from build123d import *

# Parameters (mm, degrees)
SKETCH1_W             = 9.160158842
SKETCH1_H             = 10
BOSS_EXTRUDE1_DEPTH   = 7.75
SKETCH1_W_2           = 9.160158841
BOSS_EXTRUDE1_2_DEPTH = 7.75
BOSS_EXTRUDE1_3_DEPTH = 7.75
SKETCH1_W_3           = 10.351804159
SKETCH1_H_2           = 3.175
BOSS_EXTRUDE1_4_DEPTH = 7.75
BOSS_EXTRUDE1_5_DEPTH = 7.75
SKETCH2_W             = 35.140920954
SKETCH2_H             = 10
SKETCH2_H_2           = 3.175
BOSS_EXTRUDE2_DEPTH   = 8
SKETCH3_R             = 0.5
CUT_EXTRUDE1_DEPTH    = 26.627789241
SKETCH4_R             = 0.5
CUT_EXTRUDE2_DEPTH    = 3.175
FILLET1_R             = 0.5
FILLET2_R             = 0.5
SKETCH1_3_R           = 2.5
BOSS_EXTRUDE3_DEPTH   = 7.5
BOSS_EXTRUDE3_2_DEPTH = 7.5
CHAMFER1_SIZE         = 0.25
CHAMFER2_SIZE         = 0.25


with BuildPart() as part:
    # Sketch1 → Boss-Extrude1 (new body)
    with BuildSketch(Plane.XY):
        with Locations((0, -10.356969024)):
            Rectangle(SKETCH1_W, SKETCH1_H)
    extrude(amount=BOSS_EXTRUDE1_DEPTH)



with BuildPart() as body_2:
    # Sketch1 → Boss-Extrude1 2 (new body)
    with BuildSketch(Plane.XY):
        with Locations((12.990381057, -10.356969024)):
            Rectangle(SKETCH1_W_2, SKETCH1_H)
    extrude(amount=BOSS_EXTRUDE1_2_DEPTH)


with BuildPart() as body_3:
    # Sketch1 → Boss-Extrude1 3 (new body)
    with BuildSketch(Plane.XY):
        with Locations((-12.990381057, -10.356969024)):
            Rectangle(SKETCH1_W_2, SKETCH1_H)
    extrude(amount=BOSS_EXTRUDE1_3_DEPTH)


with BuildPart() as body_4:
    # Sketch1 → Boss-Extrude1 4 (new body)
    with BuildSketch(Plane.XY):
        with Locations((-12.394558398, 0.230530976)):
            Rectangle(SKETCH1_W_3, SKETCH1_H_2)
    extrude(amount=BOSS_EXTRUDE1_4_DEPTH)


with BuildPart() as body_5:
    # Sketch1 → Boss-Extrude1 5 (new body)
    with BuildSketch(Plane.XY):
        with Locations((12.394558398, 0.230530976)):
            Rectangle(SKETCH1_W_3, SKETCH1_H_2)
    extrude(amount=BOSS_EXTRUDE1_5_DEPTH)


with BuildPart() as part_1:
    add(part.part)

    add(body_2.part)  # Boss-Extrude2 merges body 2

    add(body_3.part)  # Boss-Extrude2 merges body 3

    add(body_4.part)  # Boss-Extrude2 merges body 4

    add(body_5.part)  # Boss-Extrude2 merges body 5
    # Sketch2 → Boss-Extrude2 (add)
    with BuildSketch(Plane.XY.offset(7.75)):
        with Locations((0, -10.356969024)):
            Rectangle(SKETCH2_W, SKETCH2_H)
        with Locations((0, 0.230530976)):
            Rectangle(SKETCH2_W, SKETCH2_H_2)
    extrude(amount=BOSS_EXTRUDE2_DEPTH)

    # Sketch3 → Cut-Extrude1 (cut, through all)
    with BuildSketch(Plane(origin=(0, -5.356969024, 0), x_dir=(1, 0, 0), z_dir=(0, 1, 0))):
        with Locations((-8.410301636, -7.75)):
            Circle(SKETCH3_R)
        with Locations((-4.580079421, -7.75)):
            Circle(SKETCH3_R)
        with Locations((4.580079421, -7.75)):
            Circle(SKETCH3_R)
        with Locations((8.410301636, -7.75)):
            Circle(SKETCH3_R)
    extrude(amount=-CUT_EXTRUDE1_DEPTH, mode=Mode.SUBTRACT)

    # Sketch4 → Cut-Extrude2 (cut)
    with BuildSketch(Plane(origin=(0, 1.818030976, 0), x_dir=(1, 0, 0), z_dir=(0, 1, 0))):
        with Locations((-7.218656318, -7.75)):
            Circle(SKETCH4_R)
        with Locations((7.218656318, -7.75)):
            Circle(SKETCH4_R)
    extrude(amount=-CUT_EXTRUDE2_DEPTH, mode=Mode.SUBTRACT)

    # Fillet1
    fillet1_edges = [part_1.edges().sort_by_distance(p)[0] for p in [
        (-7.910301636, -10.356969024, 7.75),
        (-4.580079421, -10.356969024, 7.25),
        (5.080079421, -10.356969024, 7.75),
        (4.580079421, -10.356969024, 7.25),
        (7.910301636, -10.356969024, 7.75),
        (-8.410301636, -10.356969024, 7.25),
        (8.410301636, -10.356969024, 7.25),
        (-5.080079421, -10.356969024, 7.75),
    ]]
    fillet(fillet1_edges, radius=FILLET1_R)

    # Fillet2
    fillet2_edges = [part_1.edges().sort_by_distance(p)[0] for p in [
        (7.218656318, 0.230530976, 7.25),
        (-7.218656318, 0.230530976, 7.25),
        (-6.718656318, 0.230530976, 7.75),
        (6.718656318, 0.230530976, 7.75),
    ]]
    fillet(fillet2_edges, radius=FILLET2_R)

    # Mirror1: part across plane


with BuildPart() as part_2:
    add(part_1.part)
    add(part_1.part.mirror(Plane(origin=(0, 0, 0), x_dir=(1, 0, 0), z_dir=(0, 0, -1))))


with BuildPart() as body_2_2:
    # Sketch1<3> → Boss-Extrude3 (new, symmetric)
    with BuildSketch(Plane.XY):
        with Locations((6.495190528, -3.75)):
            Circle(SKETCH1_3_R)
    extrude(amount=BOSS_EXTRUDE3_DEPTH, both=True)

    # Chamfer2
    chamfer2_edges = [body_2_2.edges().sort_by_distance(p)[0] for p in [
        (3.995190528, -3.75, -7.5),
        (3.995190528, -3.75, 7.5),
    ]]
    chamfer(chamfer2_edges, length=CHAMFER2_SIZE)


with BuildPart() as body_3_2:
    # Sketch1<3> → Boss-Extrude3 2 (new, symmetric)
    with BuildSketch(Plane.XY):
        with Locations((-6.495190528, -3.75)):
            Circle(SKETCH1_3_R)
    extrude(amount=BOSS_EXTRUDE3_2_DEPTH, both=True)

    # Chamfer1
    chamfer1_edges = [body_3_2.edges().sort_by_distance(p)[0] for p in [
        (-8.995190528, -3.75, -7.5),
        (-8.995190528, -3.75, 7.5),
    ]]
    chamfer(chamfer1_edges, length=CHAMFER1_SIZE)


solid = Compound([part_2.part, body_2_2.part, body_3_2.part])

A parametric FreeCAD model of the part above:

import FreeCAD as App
import Part
import Sketcher
from FreeCAD import Vector
Q = App.Units.Quantity


def edges_at(feature, points):
    """Names of the edges that pass closest to the given points."""
    edges = feature.Shape.Edges
    near = lambda p: min(range(len(edges)), key=lambda i: edges[i].distToShape(Part.Vertex(*p))[0])
    return sorted({f"Edge{near(p) + 1}" for p in points})


def add_polygon(sketch, points):
    """Adds a closed chain of lines whose ends are joined by coincident constraints."""
    first, n = sketch.GeometryCount, len(points)
    for a, b in zip(points, points[1:] + points[:1]):
        sketch.addGeometry(Part.LineSegment(App.Vector(*a, 0), App.Vector(*b, 0)), False)
    for i in range(n):
        sketch.addConstraint(Sketcher.Constraint("Coincident", first + i, 2, first + (i + 1) % n, 1))

doc = App.newDocument("Part")
body = doc.addObject("PartDesign::Body", "Body")

# Sketch on XY plane
sketch1 = body.newObject("Sketcher::SketchObject", "Sketch")
sketch1.AttachmentSupport = (doc.getObject("XY_Plane"), [""])
sketch1.MapMode = "FlatFace"
add_polygon(sketch1, [(-5, -5), (-5, -15), (5, -15), (5, -5)])  # lines 0-3
sketch1.addConstraint(Sketcher.Constraint("Vertical", 0))
sketch1.addConstraint(Sketcher.Constraint("Horizontal", 1))
sketch1.addConstraint(Sketcher.Constraint("Vertical", 2))
sketch1.addConstraint(Sketcher.Constraint("Horizontal", 3))
sketch1.addConstraint(Sketcher.Constraint("DistanceY", 0, 2, 0, 1, Q("10 mm")))
sketch1.addConstraint(Sketcher.Constraint("DistanceX", 1, 1, 1, 2, Q("9.160159 mm")))
sketch1.addConstraint(Sketcher.Constraint("DistanceX", 0, 2, -1, 1, Q("4.580079 mm")))
sketch1.addConstraint(Sketcher.Constraint("DistanceY", 0, 2, -1, 1, Q("15.356969 mm")))
pad1 = body.newObject("PartDesign::Pad", "Pad")
pad1.Profile = sketch1
pad1.Length = 7.75
body2 = doc.addObject("PartDesign::Body", "Body001")

# Sketch on XY plane
sketch2 = body2.newObject("Sketcher::SketchObject", "Sketch001")
sketch2.AttachmentSupport = (doc.getObject("XY_Plane001"), [""])
sketch2.MapMode = "FlatFace"
add_polygon(sketch2, [(8, -5), (8, -15), (18, -15), (18, -5)])  # lines 0-3
sketch2.addConstraint(Sketcher.Constraint("Vertical", 0))
sketch2.addConstraint(Sketcher.Constraint("Horizontal", 1))
sketch2.addConstraint(Sketcher.Constraint("Vertical", 2))
sketch2.addConstraint(Sketcher.Constraint("Horizontal", 3))
sketch2.addConstraint(Sketcher.Constraint("DistanceY", 0, 2, 0, 1, Q("10 mm")))
sketch2.addConstraint(Sketcher.Constraint("DistanceX", 1, 1, 1, 2, Q("9.160159 mm")))
sketch2.addConstraint(Sketcher.Constraint("DistanceX", -1, 1, 0, 2, Q("8.410302 mm")))
sketch2.addConstraint(Sketcher.Constraint("DistanceY", 0, 2, -1, 1, Q("15.356969 mm")))
pad2 = body2.newObject("PartDesign::Pad", "Pad001")
pad2.Profile = sketch2
pad2.Length = 7.75
body3 = doc.addObject("PartDesign::Body", "Body002")

# Sketch on XY plane
sketch3 = body3.newObject("Sketcher::SketchObject", "Sketch002")
sketch3.AttachmentSupport = (doc.getObject("XY_Plane002"), [""])
sketch3.MapMode = "FlatFace"
add_polygon(sketch3, [(-18, -5), (-18, -15), (-8, -15), (-8, -5)])  # lines 0-3
sketch3.addConstraint(Sketcher.Constraint("Vertical", 0))
sketch3.addConstraint(Sketcher.Constraint("Horizontal", 1))
sketch3.addConstraint(Sketcher.Constraint("Vertical", 2))
sketch3.addConstraint(Sketcher.Constraint("Horizontal", 3))
sketch3.addConstraint(Sketcher.Constraint("DistanceY", 0, 2, 0, 1, Q("10 mm")))
sketch3.addConstraint(Sketcher.Constraint("DistanceX", 1, 1, 1, 2, Q("9.160159 mm")))
sketch3.addConstraint(Sketcher.Constraint("DistanceX", 1, 2, -1, 1, Q("8.410302 mm")))
sketch3.addConstraint(Sketcher.Constraint("DistanceY", 0, 2, -1, 1, Q("15.356969 mm")))
pad3 = body3.newObject("PartDesign::Pad", "Pad002")
pad3.Profile = sketch3
pad3.Length = 7.75
body4 = doc.addObject("PartDesign::Body", "Body003")

# Sketch on XY plane
sketch4 = body4.newObject("Sketcher::SketchObject", "Sketch003")
sketch4.AttachmentSupport = (doc.getObject("XY_Plane003"), [""])
sketch4.MapMode = "FlatFace"
add_polygon(sketch4, [(-17.6, 1.8), (-17.6, -1.4), (-7.2, -1.4), (-7.2, 1.8)])  # lines 0-3
sketch4.addConstraint(Sketcher.Constraint("Vertical", 0))
sketch4.addConstraint(Sketcher.Constraint("Horizontal", 1))
sketch4.addConstraint(Sketcher.Constraint("Vertical", 2))
sketch4.addConstraint(Sketcher.Constraint("Horizontal", 3))
sketch4.addConstraint(Sketcher.Constraint("DistanceY", 0, 2, 0, 1, Q("3.175 mm")))
sketch4.addConstraint(Sketcher.Constraint("DistanceX", 1, 1, 1, 2, Q("10.351804 mm")))
sketch4.addConstraint(Sketcher.Constraint("DistanceX", 0, 2, -1, 1, Q("17.57046 mm")))
sketch4.addConstraint(Sketcher.Constraint("DistanceY", 0, 2, -1, 1, Q("1.356969 mm")))
pad4 = body4.newObject("PartDesign::Pad", "Pad003")
pad4.Profile = sketch4
pad4.Length = 7.75
body5 = doc.addObject("PartDesign::Body", "Body004")

# Sketch on XY plane
sketch5 = body5.newObject("Sketcher::SketchObject", "Sketch004")
sketch5.AttachmentSupport = (doc.getObject("XY_Plane004"), [""])
sketch5.MapMode = "FlatFace"
add_polygon(sketch5, [(7.2, 1.8), (7.2, -1.4), (17.6, -1.4), (17.6, 1.8)])  # lines 0-3
sketch5.addConstraint(Sketcher.Constraint("Vertical", 0))
sketch5.addConstraint(Sketcher.Constraint("Horizontal", 1))
sketch5.addConstraint(Sketcher.Constraint("Vertical", 2))
sketch5.addConstraint(Sketcher.Constraint("Horizontal", 3))
sketch5.addConstraint(Sketcher.Constraint("DistanceY", 0, 2, 0, 1, Q("3.175 mm")))
sketch5.addConstraint(Sketcher.Constraint("DistanceX", 1, 1, 1, 2, Q("10.351804 mm")))
sketch5.addConstraint(Sketcher.Constraint("DistanceY", 0, 2, -1, 1, Q("1.356969 mm")))
sketch5.addConstraint(Sketcher.Constraint("DistanceX", -1, 1, 1, 2, Q("17.57046 mm")))
pad5 = body5.newObject("PartDesign::Pad", "Pad004")
pad5.Profile = sketch5
pad5.Length = 7.75
body.AllowCompound = True
doc.recompute()

boolean = body.newObject("PartDesign::Boolean", "Boolean")
boolean.Type = "Fuse"
boolean.addObjects([body2])
doc.recompute()

boolean2 = body.newObject("PartDesign::Boolean", "Boolean001")
boolean2.Type = "Fuse"
boolean2.addObjects([body3])
doc.recompute()

boolean3 = body.newObject("PartDesign::Boolean", "Boolean002")
boolean3.Type = "Fuse"
boolean3.addObjects([body4])
doc.recompute()

boolean4 = body.newObject("PartDesign::Boolean", "Boolean003")
boolean4.Type = "Fuse"
boolean4.addObjects([body5])

# Sketch on XY plane
sketch6 = body.newObject("Sketcher::SketchObject", "Sketch005")
sketch6.AttachmentSupport = (doc.getObject("XY_Plane"), [""])
sketch6.MapMode = "FlatFace"
sketch6.AttachmentOffset = App.Placement(Vector(0, 0, 7.75), App.Rotation())
add_polygon(sketch6, [(-17.6, -5.4), (-17.6, -15.4), (17.6, -15.4), (17.6, -5.4)])  # lines 0-3
add_polygon(sketch6, [(-17.6, 1.8), (-17.6, -1.4), (17.6, -1.4), (17.6, 1.8)])  # lines 4-7
sketch6.addConstraint(Sketcher.Constraint("Vertical", 0))
sketch6.addConstraint(Sketcher.Constraint("Horizontal", 1))
sketch6.addConstraint(Sketcher.Constraint("Vertical", 2))
sketch6.addConstraint(Sketcher.Constraint("Horizontal", 3))
sketch6.addConstraint(Sketcher.Constraint("Vertical", 4))
sketch6.addConstraint(Sketcher.Constraint("Horizontal", 5))
sketch6.addConstraint(Sketcher.Constraint("Vertical", 6))
sketch6.addConstraint(Sketcher.Constraint("Horizontal", 7))
sketch6.addConstraint(Sketcher.Constraint("Vertical", 3, 2, 4, 2))
sketch6.addConstraint(Sketcher.Constraint("Vertical", 2, 2, 5, 2))
sketch6.addConstraint(Sketcher.Constraint("DistanceY", 0, 2, 0, 1, Q("10 mm")))
sketch6.addConstraint(Sketcher.Constraint("DistanceY", 3, 2, 4, 2, Q("4 mm")))
sketch6.addConstraint(Sketcher.Constraint("DistanceY", 4, 2, 4, 1, Q("3.175 mm")))
sketch6.addConstraint(Sketcher.Constraint("DistanceX", 1, 1, 1, 2, Q("35.140921 mm")))
sketch6.addConstraint(Sketcher.Constraint("DistanceX", 0, 2, -1, 1, Q("17.57046 mm")))
sketch6.addConstraint(Sketcher.Constraint("DistanceY", 0, 2, -1, 1, Q("15.356969 mm")))
pad6 = body.newObject("PartDesign::Pad", "Pad005")
pad6.Profile = sketch6
pad6.Length = 8

# Sketch on XZ plane
sketch7 = body.newObject("Sketcher::SketchObject", "Sketch006")
sketch7.AttachmentSupport = (doc.getObject("XZ_Plane"), [""])
sketch7.MapMode = "FlatFace"
sketch7.AttachmentOffset = App.Placement(Vector(0, 0, 5.356969), App.Rotation())
sketch7.addGeometry(Part.Circle(Vector(-8.4, 7.8, 0), Vector(0, 0, 1), 0.5), False)
sketch7.addGeometry(Part.Circle(Vector(-4.6, 7.8, 0), Vector(0, 0, 1), 0.5), False)
sketch7.addGeometry(Part.Circle(Vector(4.6, 7.8, 0), Vector(0, 0, 1), 0.5), False)
sketch7.addGeometry(Part.Circle(Vector(8.4, 7.8, 0), Vector(0, 0, 1), 0.5), False)
sketch7.addConstraint(Sketcher.Constraint("Equal", 0, 1))
sketch7.addConstraint(Sketcher.Constraint("Equal", 1, 2))
sketch7.addConstraint(Sketcher.Constraint("Equal", 2, 3))
sketch7.addConstraint(Sketcher.Constraint("Symmetric", 1, 3, 2, 3, -2))
sketch7.addConstraint(Sketcher.Constraint("Symmetric", 0, 3, 3, 3, -2))
sketch7.addConstraint(Sketcher.Constraint("Horizontal", 0, 3, 1, 3))
sketch7.addConstraint(Sketcher.Constraint("Diameter", 0, Q("1 mm")))
sketch7.addConstraint(Sketcher.Constraint("DistanceY", -1, 1, 0, 3, Q("7.75 mm")))
sketch7.addConstraint(Sketcher.Constraint("DistanceX", 0, 3, -1, 1, Q("8.410302 mm")))
sketch7.addConstraint(Sketcher.Constraint("DistanceX", 1, 3, -1, 1, Q("4.580079 mm")))
pocket1 = body.newObject("PartDesign::Pocket", "Pocket")
pocket1.Profile = sketch7
pocket1.Type = "ThroughAll"
pocket1.Reversed = True

# Sketch on XZ plane
sketch8 = body.newObject("Sketcher::SketchObject", "Sketch007")
sketch8.AttachmentSupport = (doc.getObject("XZ_Plane"), [""])
sketch8.MapMode = "FlatFace"
sketch8.AttachmentOffset = App.Placement(Vector(0, 0, -1.818031), App.Rotation())
sketch8.addGeometry(Part.Circle(Vector(-7.2, 7.8, 0), Vector(0, 0, 1), 0.5), False)
sketch8.addGeometry(Part.Circle(Vector(7.2, 7.8, 0), Vector(0, 0, 1), 0.5), False)
sketch8.addConstraint(Sketcher.Constraint("Equal", 0, 1))
sketch8.addConstraint(Sketcher.Constraint("Symmetric", 0, 3, 1, 3, -2))
sketch8.addConstraint(Sketcher.Constraint("Diameter", 0, Q("1 mm")))
sketch8.addConstraint(Sketcher.Constraint("DistanceY", -1, 1, 0, 3, Q("7.75 mm")))
sketch8.addConstraint(Sketcher.Constraint("DistanceX", 0, 3, -1, 1, Q("7.218656 mm")))
pocket2 = body.newObject("PartDesign::Pocket", "Pocket001")
pocket2.Profile = sketch8
pocket2.Length = 3.175
pocket2.Reversed = True
doc.recompute()

fillet = body.newObject("PartDesign::Fillet", "Fillet")
fillet.Base = (pocket2, edges_at(pocket2, [
    (-7.91, -10.357, 7.75),
    (-4.58, -10.357, 7.25),
    (5.08, -10.357, 7.75),
    (4.58, -10.357, 7.25),
    (7.91, -10.357, 7.75),
    (-8.41, -10.357, 7.25),
    (8.41, -10.357, 7.25),
    (-5.08, -10.357, 7.75),
]))
fillet.Radius = 0.5
doc.recompute()

fillet2 = body.newObject("PartDesign::Fillet", "Fillet001")
fillet2.Base = (fillet, edges_at(fillet, [
    (7.219, 0.231, 7.25),
    (-7.219, 0.231, 7.25),
    (-6.719, 0.231, 7.75),
    (6.719, 0.231, 7.75),
]))
fillet2.Radius = 0.5
body6 = doc.addObject("PartDesign::Body", "Body005")
body6.AllowCompound = True
doc.recompute()

body6.BaseFeature = body
doc.recompute()

mirroring = doc.addObject("Part::Mirroring", "Mirroring")
mirroring.Source = body
mirroring.Base = Vector(0, 0, 0)
mirroring.Normal = Vector(0, 0, -1)
body7 = doc.addObject("PartDesign::Body", "Body006")
body7.BaseFeature = mirroring
boolean5 = body6.newObject("PartDesign::Boolean", "Boolean004")
boolean5.Type = "Fuse"
boolean5.addObjects([body7])
doc.recompute()
body8 = doc.addObject("PartDesign::Body", "Body007")

# Sketch on XY plane
sketch9 = body8.newObject("Sketcher::SketchObject", "Sketch008")
sketch9.AttachmentSupport = (doc.getObject("XY_Plane007"), [""])
sketch9.MapMode = "FlatFace"
sketch9.addGeometry(Part.Circle(Vector(6.5, -3.8, 0), Vector(0, 0, 1), 2.5), False)
sketch9.addConstraint(Sketcher.Constraint("Diameter", 0, Q("5 mm")))
sketch9.addConstraint(Sketcher.Constraint("DistanceY", 0, 3, -1, 1, Q("3.75 mm")))
sketch9.addConstraint(Sketcher.Constraint("DistanceX", -1, 1, 0, 3, Q("6.495191 mm")))
pad7 = body8.newObject("PartDesign::Pad", "Pad006")
pad7.Profile = sketch9
pad7.Length = 15
pad7.Midplane = True
doc.recompute()

chamfer = body8.newObject("PartDesign::Chamfer", "Chamfer")
chamfer.Base = (pad7, edges_at(pad7, [(3.995, -3.75, -7.5), (3.995, -3.75, 7.5)]))
chamfer.Size = 0.25
body9 = doc.addObject("PartDesign::Body", "Body008")

# Sketch on XY plane
sketch10 = body9.newObject("Sketcher::SketchObject", "Sketch009")
sketch10.AttachmentSupport = (doc.getObject("XY_Plane008"), [""])
sketch10.MapMode = "FlatFace"
sketch10.addGeometry(Part.Circle(Vector(-6.5, -3.8, 0), Vector(0, 0, 1), 2.5), False)
sketch10.addConstraint(Sketcher.Constraint("Diameter", 0, Q("5 mm")))
sketch10.addConstraint(Sketcher.Constraint("DistanceY", 0, 3, -1, 1, Q("3.75 mm")))
sketch10.addConstraint(Sketcher.Constraint("DistanceX", 0, 3, -1, 1, Q("6.495191 mm")))
pad8 = body9.newObject("PartDesign::Pad", "Pad007")
pad8.Profile = sketch10
pad8.Length = 15
pad8.Midplane = True
doc.recompute()

chamfer2 = body9.newObject("PartDesign::Chamfer", "Chamfer001")
chamfer2.Base = (pad8, edges_at(pad8, [(-8.995, -3.75, -7.5), (-8.995, -3.75, 7.5)]))
chamfer2.Size = 0.25
mirroring.Visibility = False

doc.recompute()
